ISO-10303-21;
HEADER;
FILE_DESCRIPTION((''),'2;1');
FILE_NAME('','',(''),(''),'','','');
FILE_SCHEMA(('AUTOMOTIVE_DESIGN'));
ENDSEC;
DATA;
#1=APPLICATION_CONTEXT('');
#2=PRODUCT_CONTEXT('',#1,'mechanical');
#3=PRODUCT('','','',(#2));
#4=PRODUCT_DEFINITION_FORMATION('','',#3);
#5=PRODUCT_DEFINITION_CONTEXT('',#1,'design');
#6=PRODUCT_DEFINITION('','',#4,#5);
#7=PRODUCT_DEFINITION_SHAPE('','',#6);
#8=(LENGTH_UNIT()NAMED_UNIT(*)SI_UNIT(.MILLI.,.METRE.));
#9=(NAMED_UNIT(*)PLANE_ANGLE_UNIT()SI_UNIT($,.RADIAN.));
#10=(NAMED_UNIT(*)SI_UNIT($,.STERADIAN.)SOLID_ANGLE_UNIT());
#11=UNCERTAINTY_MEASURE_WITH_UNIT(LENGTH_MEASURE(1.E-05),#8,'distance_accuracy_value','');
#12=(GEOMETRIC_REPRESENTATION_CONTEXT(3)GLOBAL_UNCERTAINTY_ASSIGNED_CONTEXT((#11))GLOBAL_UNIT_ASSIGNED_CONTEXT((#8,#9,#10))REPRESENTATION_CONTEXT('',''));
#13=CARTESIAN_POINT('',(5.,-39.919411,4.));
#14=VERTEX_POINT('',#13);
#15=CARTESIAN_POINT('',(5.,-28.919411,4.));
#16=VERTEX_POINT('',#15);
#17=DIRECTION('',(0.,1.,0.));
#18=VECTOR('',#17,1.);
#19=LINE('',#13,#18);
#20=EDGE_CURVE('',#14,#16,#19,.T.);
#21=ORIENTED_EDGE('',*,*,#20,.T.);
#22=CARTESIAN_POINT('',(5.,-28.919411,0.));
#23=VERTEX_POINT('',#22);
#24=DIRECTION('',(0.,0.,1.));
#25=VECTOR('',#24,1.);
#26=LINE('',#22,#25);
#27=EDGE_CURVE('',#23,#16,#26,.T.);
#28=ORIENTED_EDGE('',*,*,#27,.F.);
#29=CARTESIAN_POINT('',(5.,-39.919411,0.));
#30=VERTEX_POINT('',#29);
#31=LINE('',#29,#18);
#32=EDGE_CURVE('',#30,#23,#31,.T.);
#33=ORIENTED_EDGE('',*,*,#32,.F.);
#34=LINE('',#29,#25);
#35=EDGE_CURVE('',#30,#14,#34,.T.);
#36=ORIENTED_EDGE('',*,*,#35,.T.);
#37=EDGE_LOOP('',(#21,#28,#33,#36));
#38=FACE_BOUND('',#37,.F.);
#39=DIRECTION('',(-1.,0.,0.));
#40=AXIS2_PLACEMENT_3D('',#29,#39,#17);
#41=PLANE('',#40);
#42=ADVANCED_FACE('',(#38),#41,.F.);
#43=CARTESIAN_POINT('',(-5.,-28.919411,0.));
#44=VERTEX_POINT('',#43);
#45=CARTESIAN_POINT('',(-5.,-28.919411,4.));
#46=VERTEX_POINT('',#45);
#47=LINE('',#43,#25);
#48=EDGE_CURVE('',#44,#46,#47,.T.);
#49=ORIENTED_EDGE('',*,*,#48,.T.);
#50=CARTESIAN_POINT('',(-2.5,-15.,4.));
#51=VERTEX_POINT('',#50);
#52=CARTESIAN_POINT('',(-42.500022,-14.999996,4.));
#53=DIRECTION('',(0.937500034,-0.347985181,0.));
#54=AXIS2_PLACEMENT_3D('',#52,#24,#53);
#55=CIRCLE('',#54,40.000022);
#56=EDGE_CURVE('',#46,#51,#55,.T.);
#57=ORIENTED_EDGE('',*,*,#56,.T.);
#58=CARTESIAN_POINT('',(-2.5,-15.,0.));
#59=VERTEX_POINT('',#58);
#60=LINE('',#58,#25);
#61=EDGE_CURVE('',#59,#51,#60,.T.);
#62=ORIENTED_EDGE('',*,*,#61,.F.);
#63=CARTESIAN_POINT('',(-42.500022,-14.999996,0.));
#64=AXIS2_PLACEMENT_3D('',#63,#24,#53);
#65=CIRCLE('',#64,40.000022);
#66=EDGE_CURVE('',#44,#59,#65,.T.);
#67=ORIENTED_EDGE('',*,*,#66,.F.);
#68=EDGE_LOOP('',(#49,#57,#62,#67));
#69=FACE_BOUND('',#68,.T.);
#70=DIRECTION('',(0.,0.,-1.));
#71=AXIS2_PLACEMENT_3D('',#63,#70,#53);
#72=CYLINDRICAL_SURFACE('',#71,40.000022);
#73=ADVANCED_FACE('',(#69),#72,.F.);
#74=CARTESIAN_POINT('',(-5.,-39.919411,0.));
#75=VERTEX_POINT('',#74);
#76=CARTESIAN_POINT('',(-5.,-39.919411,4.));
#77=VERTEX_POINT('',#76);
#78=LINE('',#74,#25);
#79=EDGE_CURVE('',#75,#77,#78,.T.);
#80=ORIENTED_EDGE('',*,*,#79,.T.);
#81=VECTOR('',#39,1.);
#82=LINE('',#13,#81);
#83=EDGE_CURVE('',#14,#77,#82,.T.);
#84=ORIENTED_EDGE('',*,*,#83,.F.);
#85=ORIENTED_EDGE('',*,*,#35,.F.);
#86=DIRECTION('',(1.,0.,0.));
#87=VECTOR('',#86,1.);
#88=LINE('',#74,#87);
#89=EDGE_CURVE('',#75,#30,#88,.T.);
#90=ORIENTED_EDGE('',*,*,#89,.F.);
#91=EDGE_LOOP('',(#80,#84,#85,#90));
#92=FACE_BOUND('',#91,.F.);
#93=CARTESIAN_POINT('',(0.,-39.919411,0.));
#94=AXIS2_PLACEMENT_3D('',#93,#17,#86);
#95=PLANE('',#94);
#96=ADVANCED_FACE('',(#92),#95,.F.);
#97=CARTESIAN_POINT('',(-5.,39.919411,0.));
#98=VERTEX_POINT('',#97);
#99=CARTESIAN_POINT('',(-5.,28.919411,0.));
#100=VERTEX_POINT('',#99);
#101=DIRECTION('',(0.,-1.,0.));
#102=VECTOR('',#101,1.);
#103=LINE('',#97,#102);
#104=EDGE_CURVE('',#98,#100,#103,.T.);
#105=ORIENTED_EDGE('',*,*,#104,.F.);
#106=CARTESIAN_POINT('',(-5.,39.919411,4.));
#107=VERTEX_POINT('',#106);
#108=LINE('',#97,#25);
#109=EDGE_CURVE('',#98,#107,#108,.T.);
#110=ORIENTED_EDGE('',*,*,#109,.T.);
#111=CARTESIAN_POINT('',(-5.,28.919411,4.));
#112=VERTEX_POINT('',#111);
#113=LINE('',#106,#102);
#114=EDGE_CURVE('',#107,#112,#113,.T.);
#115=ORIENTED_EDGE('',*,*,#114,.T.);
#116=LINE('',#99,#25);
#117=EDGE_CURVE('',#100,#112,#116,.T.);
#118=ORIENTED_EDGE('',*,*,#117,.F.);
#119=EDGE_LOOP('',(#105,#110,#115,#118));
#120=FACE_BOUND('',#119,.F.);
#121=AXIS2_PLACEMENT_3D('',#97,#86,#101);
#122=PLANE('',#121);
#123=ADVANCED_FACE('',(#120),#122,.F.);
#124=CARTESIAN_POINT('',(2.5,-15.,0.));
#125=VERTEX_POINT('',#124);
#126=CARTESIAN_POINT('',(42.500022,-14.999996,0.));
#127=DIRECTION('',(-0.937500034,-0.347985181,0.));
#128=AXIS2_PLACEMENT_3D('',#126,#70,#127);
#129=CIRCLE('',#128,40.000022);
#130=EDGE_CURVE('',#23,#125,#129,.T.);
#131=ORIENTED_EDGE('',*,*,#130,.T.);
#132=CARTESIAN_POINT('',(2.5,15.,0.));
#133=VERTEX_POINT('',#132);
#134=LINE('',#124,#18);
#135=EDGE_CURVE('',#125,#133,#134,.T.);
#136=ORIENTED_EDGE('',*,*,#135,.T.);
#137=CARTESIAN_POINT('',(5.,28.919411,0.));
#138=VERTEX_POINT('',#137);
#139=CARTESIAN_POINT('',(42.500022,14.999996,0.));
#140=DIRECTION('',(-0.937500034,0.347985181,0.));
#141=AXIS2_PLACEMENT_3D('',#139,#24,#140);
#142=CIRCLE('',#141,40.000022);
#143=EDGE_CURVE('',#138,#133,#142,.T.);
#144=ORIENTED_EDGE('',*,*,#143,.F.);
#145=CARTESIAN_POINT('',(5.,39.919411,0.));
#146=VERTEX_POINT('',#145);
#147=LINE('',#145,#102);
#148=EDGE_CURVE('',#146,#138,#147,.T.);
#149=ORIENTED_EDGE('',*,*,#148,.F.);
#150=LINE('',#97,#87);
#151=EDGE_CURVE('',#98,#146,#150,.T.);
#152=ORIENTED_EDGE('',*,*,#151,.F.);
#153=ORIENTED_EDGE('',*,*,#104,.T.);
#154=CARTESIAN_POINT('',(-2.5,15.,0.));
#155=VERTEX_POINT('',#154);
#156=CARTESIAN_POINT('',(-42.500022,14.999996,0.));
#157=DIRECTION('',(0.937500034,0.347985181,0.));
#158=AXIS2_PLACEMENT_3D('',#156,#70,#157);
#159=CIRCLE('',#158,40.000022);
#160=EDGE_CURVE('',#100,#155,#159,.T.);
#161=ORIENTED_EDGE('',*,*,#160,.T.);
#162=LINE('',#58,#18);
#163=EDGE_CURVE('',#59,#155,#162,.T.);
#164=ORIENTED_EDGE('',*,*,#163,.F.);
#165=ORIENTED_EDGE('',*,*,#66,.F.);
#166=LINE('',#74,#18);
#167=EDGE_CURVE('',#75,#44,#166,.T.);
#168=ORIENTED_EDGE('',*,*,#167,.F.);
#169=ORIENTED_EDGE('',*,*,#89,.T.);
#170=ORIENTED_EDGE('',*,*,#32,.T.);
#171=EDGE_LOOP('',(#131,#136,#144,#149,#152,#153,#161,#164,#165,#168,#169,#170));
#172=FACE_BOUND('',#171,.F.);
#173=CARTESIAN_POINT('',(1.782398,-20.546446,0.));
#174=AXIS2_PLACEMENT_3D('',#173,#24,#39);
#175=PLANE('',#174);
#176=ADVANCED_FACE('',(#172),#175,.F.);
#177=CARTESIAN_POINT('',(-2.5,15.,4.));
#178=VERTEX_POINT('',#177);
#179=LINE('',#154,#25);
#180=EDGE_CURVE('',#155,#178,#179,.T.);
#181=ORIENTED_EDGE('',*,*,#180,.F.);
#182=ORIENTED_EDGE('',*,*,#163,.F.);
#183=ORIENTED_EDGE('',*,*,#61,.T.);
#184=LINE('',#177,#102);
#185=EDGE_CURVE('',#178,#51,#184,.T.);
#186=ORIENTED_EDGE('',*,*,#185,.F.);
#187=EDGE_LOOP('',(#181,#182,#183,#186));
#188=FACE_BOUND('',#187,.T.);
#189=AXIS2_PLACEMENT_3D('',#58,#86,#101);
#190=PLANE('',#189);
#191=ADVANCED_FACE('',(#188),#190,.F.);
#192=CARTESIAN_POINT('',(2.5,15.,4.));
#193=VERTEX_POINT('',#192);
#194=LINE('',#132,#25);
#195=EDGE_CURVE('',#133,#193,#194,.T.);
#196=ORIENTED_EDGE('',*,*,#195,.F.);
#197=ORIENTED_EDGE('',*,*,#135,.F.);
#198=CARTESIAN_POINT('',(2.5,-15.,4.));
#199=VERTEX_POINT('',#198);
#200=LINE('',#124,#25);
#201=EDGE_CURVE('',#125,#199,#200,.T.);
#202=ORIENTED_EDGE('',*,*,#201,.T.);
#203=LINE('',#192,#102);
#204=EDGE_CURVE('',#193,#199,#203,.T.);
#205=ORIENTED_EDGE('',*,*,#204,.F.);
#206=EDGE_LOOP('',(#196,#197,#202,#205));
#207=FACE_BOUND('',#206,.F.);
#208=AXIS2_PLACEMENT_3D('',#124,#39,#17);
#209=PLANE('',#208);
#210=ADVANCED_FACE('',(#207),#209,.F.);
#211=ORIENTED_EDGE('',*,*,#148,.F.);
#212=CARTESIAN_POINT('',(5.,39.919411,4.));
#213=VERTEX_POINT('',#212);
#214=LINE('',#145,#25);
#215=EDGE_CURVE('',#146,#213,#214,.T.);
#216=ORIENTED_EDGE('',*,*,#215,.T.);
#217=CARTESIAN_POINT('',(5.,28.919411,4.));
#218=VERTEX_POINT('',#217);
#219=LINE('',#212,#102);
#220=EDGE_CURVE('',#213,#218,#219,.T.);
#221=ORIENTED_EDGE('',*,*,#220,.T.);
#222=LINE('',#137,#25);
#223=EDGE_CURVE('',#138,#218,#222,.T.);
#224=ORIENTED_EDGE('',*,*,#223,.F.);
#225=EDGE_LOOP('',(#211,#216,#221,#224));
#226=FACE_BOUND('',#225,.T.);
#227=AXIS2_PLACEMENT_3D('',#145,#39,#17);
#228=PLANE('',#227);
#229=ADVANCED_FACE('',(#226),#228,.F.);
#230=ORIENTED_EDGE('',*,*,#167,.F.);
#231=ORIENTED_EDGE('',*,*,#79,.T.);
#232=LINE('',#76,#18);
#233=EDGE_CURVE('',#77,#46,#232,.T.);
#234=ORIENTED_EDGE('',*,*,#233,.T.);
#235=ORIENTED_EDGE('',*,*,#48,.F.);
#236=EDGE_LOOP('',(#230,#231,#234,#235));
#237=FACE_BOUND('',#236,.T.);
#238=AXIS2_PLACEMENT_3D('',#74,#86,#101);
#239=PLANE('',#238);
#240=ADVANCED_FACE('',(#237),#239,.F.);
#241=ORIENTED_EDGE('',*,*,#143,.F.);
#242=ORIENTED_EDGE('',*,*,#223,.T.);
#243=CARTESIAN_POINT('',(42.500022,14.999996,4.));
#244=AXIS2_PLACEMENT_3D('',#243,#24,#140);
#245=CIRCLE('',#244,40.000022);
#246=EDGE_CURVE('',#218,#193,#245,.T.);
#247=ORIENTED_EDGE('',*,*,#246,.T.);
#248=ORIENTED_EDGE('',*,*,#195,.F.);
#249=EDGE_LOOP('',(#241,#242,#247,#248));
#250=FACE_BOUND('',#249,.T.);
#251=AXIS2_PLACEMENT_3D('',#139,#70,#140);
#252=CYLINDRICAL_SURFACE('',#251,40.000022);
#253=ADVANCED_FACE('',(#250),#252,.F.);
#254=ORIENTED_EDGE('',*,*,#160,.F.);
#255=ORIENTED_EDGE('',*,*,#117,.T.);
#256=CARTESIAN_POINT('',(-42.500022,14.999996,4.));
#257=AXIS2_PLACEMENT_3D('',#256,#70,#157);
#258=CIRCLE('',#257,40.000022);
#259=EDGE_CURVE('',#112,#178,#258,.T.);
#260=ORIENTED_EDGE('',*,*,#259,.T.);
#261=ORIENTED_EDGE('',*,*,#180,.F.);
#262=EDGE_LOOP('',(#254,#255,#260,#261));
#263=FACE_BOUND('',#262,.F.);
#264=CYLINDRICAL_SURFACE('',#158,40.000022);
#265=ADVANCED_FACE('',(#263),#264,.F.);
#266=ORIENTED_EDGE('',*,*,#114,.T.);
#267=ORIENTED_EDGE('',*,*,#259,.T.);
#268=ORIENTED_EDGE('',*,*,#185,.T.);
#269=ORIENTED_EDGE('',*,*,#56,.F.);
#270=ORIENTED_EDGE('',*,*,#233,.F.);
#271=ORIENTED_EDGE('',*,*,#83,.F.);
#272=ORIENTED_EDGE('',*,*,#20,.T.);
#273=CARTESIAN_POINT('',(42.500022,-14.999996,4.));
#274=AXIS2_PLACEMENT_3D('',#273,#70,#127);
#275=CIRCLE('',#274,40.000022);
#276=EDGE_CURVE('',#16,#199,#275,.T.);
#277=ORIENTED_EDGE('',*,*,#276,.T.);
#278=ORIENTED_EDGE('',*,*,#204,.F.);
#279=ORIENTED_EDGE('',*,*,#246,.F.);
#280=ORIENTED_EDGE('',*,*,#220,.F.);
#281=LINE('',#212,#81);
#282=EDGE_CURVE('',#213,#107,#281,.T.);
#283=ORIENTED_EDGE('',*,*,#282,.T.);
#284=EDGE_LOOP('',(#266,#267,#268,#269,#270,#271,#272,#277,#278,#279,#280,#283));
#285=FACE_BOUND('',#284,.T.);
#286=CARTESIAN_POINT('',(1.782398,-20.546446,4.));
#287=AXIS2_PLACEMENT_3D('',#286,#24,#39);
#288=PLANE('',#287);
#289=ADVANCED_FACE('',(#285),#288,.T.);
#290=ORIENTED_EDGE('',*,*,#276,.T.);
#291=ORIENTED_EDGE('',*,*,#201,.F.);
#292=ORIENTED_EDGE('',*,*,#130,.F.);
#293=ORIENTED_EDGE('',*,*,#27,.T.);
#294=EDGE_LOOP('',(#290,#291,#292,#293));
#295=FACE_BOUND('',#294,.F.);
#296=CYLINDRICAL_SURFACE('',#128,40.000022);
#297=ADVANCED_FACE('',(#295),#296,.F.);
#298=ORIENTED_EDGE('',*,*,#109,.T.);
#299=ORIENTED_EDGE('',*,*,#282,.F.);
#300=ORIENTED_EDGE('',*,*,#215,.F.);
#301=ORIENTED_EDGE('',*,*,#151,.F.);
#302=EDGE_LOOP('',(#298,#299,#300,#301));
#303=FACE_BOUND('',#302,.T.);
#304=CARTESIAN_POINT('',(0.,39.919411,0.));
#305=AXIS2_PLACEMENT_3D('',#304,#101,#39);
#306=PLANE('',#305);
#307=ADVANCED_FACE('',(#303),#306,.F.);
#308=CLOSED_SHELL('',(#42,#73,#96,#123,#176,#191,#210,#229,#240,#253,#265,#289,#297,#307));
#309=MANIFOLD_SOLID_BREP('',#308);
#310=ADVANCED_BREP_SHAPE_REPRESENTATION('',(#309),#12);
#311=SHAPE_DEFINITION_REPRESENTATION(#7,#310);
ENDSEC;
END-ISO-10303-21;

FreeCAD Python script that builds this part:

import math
import FreeCAD as App
import Part
import Sketcher

V = App.Vector
Q = App.Units.Quantity

doc = App.newDocument("Part")
body = doc.addObject("PartDesign::Body", "Body")

# Sketch on XY plane
sketch1 = doc.addObject("Sketcher::SketchObject", "Sketch")
body.addObject(sketch1)
sketch1.AttachmentSupport = (doc.XY_Plane, [""])
sketch1.MapMode = "FlatFace"
sketch1.addGeometry(Part.LineSegment(V(-2.5, 15, 0), V(-2.5, 0, 0)), False)
sketch1.addGeometry(Part.LineSegment(V(-2.5, 0, 0), V(0, 0, 0)), False)
sketch1.addGeometry(Part.LineSegment(V(0, 0, 0), V(0, 39.9, 0)), False)
sketch1.addGeometry(Part.LineSegment(V(0, 39.9, 0), V(-5, 39.9, 0)), False)
sketch1.addGeometry(Part.LineSegment(V(-5, 39.9, 0), V(-5, 28.9, 0)), False)
sketch1.addGeometry(Part.ArcOfCircle(Part.Circle(V(-42.5, 15, 0), V(0, 0, 1), 40), math.radians(0), math.radians(20)), False)
sketch1.addConstraint(Sketcher.Constraint("Coincident", 0, 2, 1, 1))
sketch1.addConstraint(Sketcher.Constraint("Coincident", 1, 2, 2, 1))
sketch1.addConstraint(Sketcher.Constraint("Coincident", 2, 2, 3, 1))
sketch1.addConstraint(Sketcher.Constraint("Coincident", 3, 2, 4, 1))
sketch1.addConstraint(Sketcher.Constraint("Coincident", 4, 2, 5, 2))
sketch1.addConstraint(Sketcher.Constraint("Tangent", 5, 1, 0, 1))
sketch1.addConstraint(Sketcher.Constraint("Vertical", 0))
sketch1.addConstraint(Sketcher.Constraint("Horizontal", 1))
sketch1.addConstraint(Sketcher.Constraint("Vertical", 2))
sketch1.addConstraint(Sketcher.Constraint("Horizontal", 3))
sketch1.addConstraint(Sketcher.Constraint("Vertical", 4))
sketch1.addConstraint(Sketcher.Constraint("Coincident", 1, 2, -1, 1))
sketch1.addConstraint(Sketcher.Constraint("DistanceX", 3, 2, 3, 1, Q("5 mm")))
sketch1.addConstraint(Sketcher.Constraint("DistanceY", 0, 2, 0, 1, Q("15 mm")))
sketch1.addConstraint(Sketcher.Constraint("DistanceY", 4, 2, 4, 1, Q("11 mm")))
sketch1.addConstraint(Sketcher.Constraint("DistanceX", 1, 1, 1, 2, Q("2.5 mm")))
sketch1.addConstraint(Sketcher.Constraint("Radius", 5, Q("40.000022 mm")))
pad1 = doc.addObject("PartDesign::Pad", "Pad")
body.addObject(pad1)
pad1.Profile = sketch1
pad1.Length = 4
body2 = doc.addObject("PartDesign::Body", "Body001")
doc.recompute()

body2.BaseFeature = body
doc.recompute()

mirroring = doc.addObject("Part::Mirroring", "Mirroring")
mirroring.Source = body
mirroring.Base = V(0, 19.959705, 2)
mirroring.Normal = V(1, 0, 0)
body3 = doc.addObject("PartDesign::Body", "Body002")
body3.BaseFeature = mirroring
boolean = doc.addObject("PartDesign::Boolean", "Boolean")
body2.addObject(boolean)
boolean.Type = "Fuse"
boolean.addObjects([body3])
doc.recompute()
body4 = doc.addObject("PartDesign::Body", "Body003")
doc.recompute()

body4.BaseFeature = body2
doc.recompute()

mirroring2 = doc.addObject("Part::Mirroring", "Mirroring001")
mirroring2.Source = body2
mirroring2.Base = V(0, 0, 2)
mirroring2.Normal = V(0, -1, 0)
body5 = doc.addObject("PartDesign::Body", "Body004")
body5.BaseFeature = mirroring2
boolean2 = doc.addObject("PartDesign::Boolean", "Boolean001")
body4.addObject(boolean2)
boolean2.Type = "Fuse"
boolean2.addObjects([body5])
doc.recompute()
mirroring.Visibility = False
mirroring2.Visibility = False

doc.recompute()
